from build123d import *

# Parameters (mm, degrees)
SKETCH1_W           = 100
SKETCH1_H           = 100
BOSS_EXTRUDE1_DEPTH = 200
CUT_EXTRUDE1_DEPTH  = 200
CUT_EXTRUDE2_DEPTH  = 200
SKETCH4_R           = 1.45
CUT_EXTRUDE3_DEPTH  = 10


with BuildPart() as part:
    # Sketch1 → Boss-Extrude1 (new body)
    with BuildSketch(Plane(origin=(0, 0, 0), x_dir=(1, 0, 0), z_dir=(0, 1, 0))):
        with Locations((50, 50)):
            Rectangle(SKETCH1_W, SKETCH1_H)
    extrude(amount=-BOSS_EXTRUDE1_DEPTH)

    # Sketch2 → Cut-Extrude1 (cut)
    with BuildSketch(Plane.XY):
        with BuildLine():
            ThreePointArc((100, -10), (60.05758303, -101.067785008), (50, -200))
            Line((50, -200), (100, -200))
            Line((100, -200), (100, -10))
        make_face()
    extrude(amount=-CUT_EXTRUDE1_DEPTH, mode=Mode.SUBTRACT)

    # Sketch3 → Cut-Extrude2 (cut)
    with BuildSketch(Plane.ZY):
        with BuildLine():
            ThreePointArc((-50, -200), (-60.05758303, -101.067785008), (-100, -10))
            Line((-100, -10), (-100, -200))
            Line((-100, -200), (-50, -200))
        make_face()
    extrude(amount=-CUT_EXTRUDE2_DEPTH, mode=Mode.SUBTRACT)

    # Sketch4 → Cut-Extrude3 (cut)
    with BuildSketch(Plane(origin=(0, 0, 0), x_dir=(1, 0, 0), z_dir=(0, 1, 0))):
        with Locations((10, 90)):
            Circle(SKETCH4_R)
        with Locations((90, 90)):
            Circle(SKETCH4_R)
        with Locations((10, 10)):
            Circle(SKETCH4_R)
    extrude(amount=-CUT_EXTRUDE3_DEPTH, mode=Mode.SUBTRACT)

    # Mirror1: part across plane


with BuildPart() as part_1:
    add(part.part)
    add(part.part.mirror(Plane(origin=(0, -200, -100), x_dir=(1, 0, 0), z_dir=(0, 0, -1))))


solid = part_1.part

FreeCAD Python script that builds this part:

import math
import FreeCAD as App
import Part
import Sketcher

V = App.Vector
Q = App.Units.Quantity

doc = App.newDocument("Part")
body = doc.addObject("PartDesign::Body", "Body")

# Sketch on XZ plane
sketch1 = body.newObject("Sketcher::SketchObject", "Sketch")
sketch1.AttachmentSupport = (doc.getObject("XZ_Plane"), [""])
sketch1.MapMode = "FlatFace"
sketch1.addGeometry(Part.LineSegment(V(0, -100, 0), V(0, 0, 0)), False)
sketch1.addGeometry(Part.LineSegment(V(0, 0, 0), V(100, 0, 0)), False)
sketch1.addGeometry(Part.LineSegment(V(100, 0, 0), V(100, -100, 0)), False)
sketch1.addGeometry(Part.LineSegment(V(100, -100, 0), V(0, -100, 0)), False)
sketch1.addConstraint(Sketcher.Constraint("Coincident", 0, 2, 1, 1))
sketch1.addConstraint(Sketcher.Constraint("Coincident", 1, 2, 2, 1))
sketch1.addConstraint(Sketcher.Constraint("Coincident", 2, 2, 3, 1))
sketch1.addConstraint(Sketcher.Constraint("Coincident", 3, 2, 0, 1))
sketch1.addConstraint(Sketcher.Constraint("Vertical", 0))
sketch1.addConstraint(Sketcher.Constraint("Horizontal", 1))
sketch1.addConstraint(Sketcher.Constraint("Vertical", 2))
sketch1.addConstraint(Sketcher.Constraint("Horizontal", 3))
sketch1.addConstraint(Sketcher.Constraint("Coincident", 0, 2, -1, 1))
sketch1.addConstraint(Sketcher.Constraint("Equal", 3, 0))
sketch1.addConstraint(Sketcher.Constraint("DistanceX", 1, 1, 1, 2, Q("100 mm")))
pad1 = body.newObject("PartDesign::Pad", "Pad")
pad1.Profile = sketch1
pad1.Length = 200

# Sketch on XY plane
sketch2 = body.newObject("Sketcher::SketchObject", "Sketch001")
sketch2.AttachmentSupport = (doc.getObject("XY_Plane"), [""])
sketch2.MapMode = "FlatFace"
sketch2.addGeometry(Part.ArcOfCircle(Part.Circle(V(369.521435, -182.505641, 0), V(0, 0, 1), 320), math.radians(147.378959), math.radians(183.133915)), False)
sketch2.addGeometry(Part.LineSegment(V(50, -200, 0), V(100, -200, 0)), False)
sketch2.addGeometry(Part.LineSegment(V(100, -200, 0), V(100, -10, 0)), False)
sketch2.addConstraint(Sketcher.Constraint("Coincident", 0, 2, 1, 1))
sketch2.addConstraint(Sketcher.Constraint("Coincident", 1, 2, 2, 1))
sketch2.addConstraint(Sketcher.Constraint("Coincident", 2, 2, 0, 1))
sketch2.addConstraint(Sketcher.Constraint("Horizontal", 1))
sketch2.addConstraint(Sketcher.Constraint("Vertical", 2))
sketch2.addConstraint(Sketcher.Constraint("Radius", 0, Q("320 mm")))
sketch2.addConstraint(Sketcher.Constraint("DistanceX", 1, 1, 1, 2, Q("50 mm")))
sketch2.addConstraint(Sketcher.Constraint("DistanceY", 2, 1, 2, 2, Q("190 mm")))
sketch2.addConstraint(Sketcher.Constraint("DistanceX", -1, 1, 0, 2, Q("50 mm")))
sketch2.addConstraint(Sketcher.Constraint("DistanceY", 1, 2, -1, 1, Q("200 mm")))
pocket1 = body.newObject("PartDesign::Pocket", "Pocket")
pocket1.Profile = sketch2
pocket1.Length = 200

# Sketch on YZ plane
sketch3 = body.newObject("Sketcher::SketchObject", "Sketch002")
sketch3.AttachmentSupport = (doc.getObject("YZ_Plane"), [""])
sketch3.MapMode = "FlatFace"
sketch3.addGeometry(Part.ArcOfCircle(Part.Circle(V(-182.505641, -369.521435, 0), V(0, 0, 1), 320), math.radians(57.378959), math.radians(93.133915)), False)
sketch3.addGeometry(Part.LineSegment(V(-10, -100, 0), V(-200, -100, 0)), False)
sketch3.addGeometry(Part.LineSegment(V(-200, -100, 0), V(-200, -50, 0)), False)
sketch3.addConstraint(Sketcher.Constraint("Coincident", 0, 1, 1, 1))
sketch3.addConstraint(Sketcher.Constraint("Coincident", 1, 2, 2, 1))
sketch3.addConstraint(Sketcher.Constraint("Coincident", 2, 2, 0, 2))
sketch3.addConstraint(Sketcher.Constraint("Horizontal", 1))
sketch3.addConstraint(Sketcher.Constraint("Vertical", 2))
sketch3.addConstraint(Sketcher.Constraint("Radius", 0, Q("320 mm")))
sketch3.addConstraint(Sketcher.Constraint("DistanceX", 1, 2, 1, 1, Q("190 mm")))
sketch3.addConstraint(Sketcher.Constraint("DistanceY", 2, 1, 2, 2, Q("50 mm")))
sketch3.addConstraint(Sketcher.Constraint("DistanceY", 0, 1, -1, 1, Q("100 mm")))
sketch3.addConstraint(Sketcher.Constraint("DistanceX", 1, 2, -1, 1, Q("200 mm")))
pocket2 = body.newObject("PartDesign::Pocket", "Pocket001")
pocket2.Profile = sketch3
pocket2.Length = 200
pocket2.Reversed = True

# Sketch on XZ plane
sketch4 = body.newObject("Sketcher::SketchObject", "Sketch003")
sketch4.AttachmentSupport = (doc.getObject("XZ_Plane"), [""])
sketch4.MapMode = "FlatFace"
sketch4.addGeometry(Part.Circle(V(10, -90, 0), V(0, 0, 1), 1.45), False)
sketch4.addGeometry(Part.Circle(V(90, -90, 0), V(0, 0, 1), 1.45), False)
sketch4.addGeometry(Part.Circle(V(10, -10, 0), V(0, 0, 1), 1.45), False)
sketch4.addConstraint(Sketcher.Constraint("Equal", 0, 1))
sketch4.addConstraint(Sketcher.Constraint("Equal", 1, 2))
sketch4.addConstraint(Sketcher.Constraint("Horizontal", 0, 3, 1, 3))
sketch4.addConstraint(Sketcher.Constraint("Vertical", 0, 3, 2, 3))
sketch4.addConstraint(Sketcher.Constraint("Diameter", 0, Q("2.9 mm")))
sketch4.addConstraint(Sketcher.Constraint("DistanceX", -1, 1, 0, 3, Q("10 mm")))
sketch4.addConstraint(Sketcher.Constraint("DistanceY", 0, 3, -1, 1, Q("90 mm")))
sketch4.addConstraint(Sketcher.Constraint("DistanceX", -1, 1, 1, 3, Q("90 mm")))
sketch4.addConstraint(Sketcher.Constraint("DistanceY", 2, 3, -1, 1, Q("10 mm")))
pocket3 = body.newObject("PartDesign::Pocket", "Pocket002")
pocket3.Profile = sketch4
pocket3.Length = 10
pocket3.Reversed = True
body2 = doc.addObject("PartDesign::Body", "Body001")
doc.recompute()

body2.BaseFeature = body
doc.recompute()

mirroring = doc.addObject("Part::Mirroring", "Mirroring")
mirroring.Source = body
mirroring.Base = V(0, -200, -100)
mirroring.Normal = V(0, 0, -1)
body3 = doc.addObject("PartDesign::Body", "Body002")
body3.BaseFeature = mirroring
boolean = body2.newObject("PartDesign::Boolean", "Boolean")
boolean.Type = "Fuse"
boolean.addObjects([body3])
doc.recompute()
mirroring.Visibility = False

doc.recompute()
